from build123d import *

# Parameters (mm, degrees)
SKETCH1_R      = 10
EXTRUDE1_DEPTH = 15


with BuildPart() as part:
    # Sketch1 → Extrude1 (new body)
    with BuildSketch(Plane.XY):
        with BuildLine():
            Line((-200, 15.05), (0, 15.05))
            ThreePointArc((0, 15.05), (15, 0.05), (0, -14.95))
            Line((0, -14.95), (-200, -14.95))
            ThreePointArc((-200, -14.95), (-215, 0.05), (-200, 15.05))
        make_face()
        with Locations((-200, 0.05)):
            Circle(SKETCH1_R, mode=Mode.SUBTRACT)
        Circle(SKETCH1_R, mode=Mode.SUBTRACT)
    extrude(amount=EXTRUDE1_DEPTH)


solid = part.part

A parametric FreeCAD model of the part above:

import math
import FreeCAD as App
import Part
import Sketcher
from FreeCAD import Vector

doc = App.newDocument("Part")
params = doc.addObject("Spreadsheet::Sheet", "Params")
for row, (alias, value) in enumerate([
    ("sketch1_diameter", "20 mm"),
    ("sketch1_radius", "15 mm"),
    ("sketch1_width", "200 mm"),
    ("pad1_length", "15 mm"),
], start=1):
    params.set(f"A{row}", alias)
    params.set(f"B{row}", "=" + value)
    params.setAlias(f"B{row}", alias)

body = doc.addObject("PartDesign::Body", "Body")

# Sketch on XY plane
sketch1 = doc.addObject("Sketcher::SketchObject", "Sketch")
body.addObject(sketch1)
sketch1.AttachmentSupport = (doc.XY_Plane, [""])
sketch1.MapMode = "FlatFace"
sketch1.addGeometry([
    Part.LineSegment(Vector(0, 15.05, 0), Vector(-200, 15.05, 0)),  # 0
    Part.ArcOfCircle(Part.Circle(Vector(-200, 0.05, 0), Vector(0, 0, 1), 15), math.radians(90), math.radians(270)),  # 1
    Part.LineSegment(Vector(-200, -14.95, 0), Vector(0, -14.95, 0)),  # 2
    Part.ArcOfCircle(Part.Circle(Vector(0, 0.05, 0), Vector(0, 0, 1), 15), math.radians(-90), math.radians(90)),  # 3
    Part.Circle(Vector(0, 0, 0), Vector(0, 0, 1), 10),  # 4
    Part.Circle(Vector(-200, 0.05, 0), Vector(0, 0, 1), 10),  # 5
], False)
sketch1.addConstraint([
    Sketcher.Constraint("Tangent", 0, 2, 1, 1),
    Sketcher.Constraint("Tangent", 1, 2, 2, 1),
    Sketcher.Constraint("Tangent", 2, 2, 3, 1),
    Sketcher.Constraint("Tangent", 3, 2, 0, 1),
    Sketcher.Constraint("Horizontal", 0),
    Sketcher.Constraint("Horizontal", 2),
    Sketcher.Constraint("Coincident", 4, 3, -1, 1),
    Sketcher.Constraint("Coincident", 5, 3, 1, 3),
    Sketcher.Constraint("Equal", 4, 5),
    Sketcher.Constraint("PointOnObject", 3, 3, -2),
    Sketcher.Constraint("Diameter", 4, 20.0),
    Sketcher.Constraint("Radius", 1, 15.0),
    Sketcher.Constraint("DistanceX", 0, 2, 0, 1, 200.0),
    Sketcher.Constraint("DistanceY", -1, 1, 1, 3, 0.05),
])
sketch1.setExpression("Constraints[10]", "Params.sketch1_diameter")
sketch1.setExpression("Constraints[11]", "Params.sketch1_radius")
sketch1.setExpression("Constraints[12]", "Params.sketch1_width")
pad1 = doc.addObject("PartDesign::Pad", "Pad")
body.addObject(pad1)
pad1.Profile = sketch1
pad1.setExpression("Length", "Params.pad1_length")

doc.recompute()
